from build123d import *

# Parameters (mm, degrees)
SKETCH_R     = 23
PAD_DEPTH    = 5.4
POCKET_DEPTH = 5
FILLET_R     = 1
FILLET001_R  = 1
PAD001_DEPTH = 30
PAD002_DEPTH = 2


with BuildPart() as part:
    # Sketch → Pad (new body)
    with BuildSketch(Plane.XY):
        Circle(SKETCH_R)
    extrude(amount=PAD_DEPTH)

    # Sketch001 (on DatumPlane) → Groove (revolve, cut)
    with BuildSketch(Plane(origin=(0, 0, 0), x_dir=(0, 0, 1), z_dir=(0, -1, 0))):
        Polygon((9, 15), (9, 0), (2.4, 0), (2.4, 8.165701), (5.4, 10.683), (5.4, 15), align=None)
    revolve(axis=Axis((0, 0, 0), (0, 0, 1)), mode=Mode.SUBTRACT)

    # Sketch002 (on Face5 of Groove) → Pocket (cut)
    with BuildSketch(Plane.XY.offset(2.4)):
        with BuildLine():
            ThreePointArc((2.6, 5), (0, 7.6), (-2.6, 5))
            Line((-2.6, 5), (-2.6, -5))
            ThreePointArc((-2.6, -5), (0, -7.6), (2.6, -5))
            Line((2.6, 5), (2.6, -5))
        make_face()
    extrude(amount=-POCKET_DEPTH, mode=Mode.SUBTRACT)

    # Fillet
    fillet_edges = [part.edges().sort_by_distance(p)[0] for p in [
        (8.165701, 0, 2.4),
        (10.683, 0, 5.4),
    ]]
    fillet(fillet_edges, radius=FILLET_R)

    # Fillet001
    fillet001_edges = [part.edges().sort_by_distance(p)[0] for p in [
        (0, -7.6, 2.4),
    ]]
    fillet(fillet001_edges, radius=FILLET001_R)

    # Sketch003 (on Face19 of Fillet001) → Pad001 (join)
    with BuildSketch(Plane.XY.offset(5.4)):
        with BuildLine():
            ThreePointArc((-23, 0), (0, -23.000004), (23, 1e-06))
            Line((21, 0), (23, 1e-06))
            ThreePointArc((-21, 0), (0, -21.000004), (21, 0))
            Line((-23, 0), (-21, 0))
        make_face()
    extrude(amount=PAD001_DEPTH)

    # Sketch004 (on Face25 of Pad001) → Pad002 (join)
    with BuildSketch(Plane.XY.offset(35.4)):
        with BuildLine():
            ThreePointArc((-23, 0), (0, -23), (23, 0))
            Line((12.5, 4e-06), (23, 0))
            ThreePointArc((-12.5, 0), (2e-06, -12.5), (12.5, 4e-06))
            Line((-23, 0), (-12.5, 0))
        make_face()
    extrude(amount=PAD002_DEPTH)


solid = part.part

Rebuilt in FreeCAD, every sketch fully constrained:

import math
import FreeCAD as App
import Part
import Sketcher

V = App.Vector
Q = App.Units.Quantity


def edges_at(feature, points):
    """Names of the edges that pass closest to the given points."""
    edges = feature.Shape.Edges
    near = lambda p: min(range(len(edges)), key=lambda i: edges[i].distToShape(Part.Vertex(*p))[0])
    return sorted({f"Edge{near(p) + 1}" for p in points})

doc = App.newDocument("Part")
params = doc.addObject("Spreadsheet::Sheet", "Params")
for row, (alias, value) in enumerate([
    ("sketch1_diameter", "46 mm"),
    ("pad1_length", "5.4 mm"),
    ("sketch2_width", "15 mm"),
    ("sketch2_height", "3.6 mm"),
    ("sketch2_height2", "6.6 mm"),
    ("groove_angle", "360 deg"),
    ("sketch3_radius", "2.6 mm"),
    ("sketch3_height", "10 mm"),
    ("pocket1_length", "5 mm"),
    ("fillet_radius", "1 mm"),
    ("fillet2_radius", "1 mm"),
    ("sketch4_radius", "23 mm"),
    ("sketch4_radius2", "21 mm"),
    ("pad2_length", "30 mm"),
    ("sketch5_radius", "23 mm"),
    ("sketch5_radius2", "12.5 mm"),
    ("pad3_length", "2 mm"),
], start=1):
    params.set(f"A{row}", alias)
    params.set(f"B{row}", "=" + value)
    params.setAlias(f"B{row}", alias)

body = doc.addObject("PartDesign::Body", "Body")

# Sketch on XY plane
sketch1 = body.newObject("Sketcher::SketchObject", "Sketch")
sketch1.AttachmentSupport = (doc.getObject("XY_Plane"), [""])
sketch1.MapMode = "FlatFace"
sketch1.addGeometry(Part.Circle(V(0, 0, 0), V(0, 0, 1), 23), False)
sketch1.addConstraint([
    Sketcher.Constraint("Coincident", 0, 3, -1, 1),
    Sketcher.Constraint("Diameter", 0, 46.0),
])
sketch1.setExpression("Constraints[1]", "Params.sketch1_diameter")
pad1 = body.newObject("PartDesign::Pad", "Pad")
pad1.Profile = sketch1
pad1.setExpression("Length", "Params.pad1_length")

# Sketch on XZ plane
sketch2 = body.newObject("Sketcher::SketchObject", "Sketch001")
sketch2.AttachmentSupport = (doc.getObject("XZ_Plane"), [""])
sketch2.MapMode = "FlatFace"
sketch2.addGeometry([
    Part.LineSegment(V(0, 9, 0), V(-15, 9, 0)),  # 0
    Part.LineSegment(V(-15, 9, 0), V(-15, 5.4, 0)),  # 1
    Part.LineSegment(V(-15, 5.4, 0), V(-10.683, 5.4, 0)),  # 2
    Part.LineSegment(V(-10.683, 5.4, 0), V(-8.165701, 2.4, 0)),  # 3
    Part.LineSegment(V(-8.165701, 2.4, 0), V(0, 2.4, 0)),  # 4
    Part.LineSegment(V(0, 2.4, 0), V(0, 9, 0)),  # 5
], False)
sketch2.addConstraint([
    Sketcher.Constraint("Coincident", 0, 2, 1, 1),
    Sketcher.Constraint("Coincident", 1, 2, 2, 1),
    Sketcher.Constraint("Coincident", 2, 2, 3, 1),
    Sketcher.Constraint("Coincident", 3, 2, 4, 1),
    Sketcher.Constraint("Coincident", 4, 2, 5, 1),
    Sketcher.Constraint("Coincident", 5, 2, 0, 1),
    Sketcher.Constraint("Horizontal", 0),
    Sketcher.Constraint("Vertical", 1),
    Sketcher.Constraint("Horizontal", 2),
    Sketcher.Constraint("Horizontal", 4),
    Sketcher.Constraint("Vertical", 5),
    Sketcher.Constraint("PointOnObject", 4, 2, -2),
    Sketcher.Constraint("DistanceX", 0, 2, 0, 1, 15.0),
    Sketcher.Constraint("Angle", 3, Q("-49.999999 deg")),
    Sketcher.Constraint("DistanceY", 1, 2, 1, 1, 3.6),
    Sketcher.Constraint("DistanceY", 5, 1, 5, 2, 6.6),
    Sketcher.Constraint("DistanceY", -1, 1, 0, 2, 9.0),
    Sketcher.Constraint("DistanceX", 2, 1, 2, 2, 4.317),
])
sketch2.setExpression("Constraints[12]", "Params.sketch2_width")
sketch2.setExpression("Constraints[14]", "Params.sketch2_height")
sketch2.setExpression("Constraints[15]", "Params.sketch2_height2")
groove = body.newObject("PartDesign::Groove", "Groove")
groove.Profile = sketch2
groove.ReferenceAxis = (sketch2, ["V_Axis"])
groove.setExpression("Angle", "Params.groove_angle")

# Sketch on XY plane
sketch3 = body.newObject("Sketcher::SketchObject", "Sketch002")
sketch3.AttachmentSupport = (doc.getObject("XY_Plane"), [""])
sketch3.MapMode = "FlatFace"
sketch3.AttachmentOffset = App.Placement(V(0, 0, 2.4), App.Rotation())
sketch3.addGeometry([
    Part.ArcOfCircle(Part.Circle(V(0, 5, 0), V(0, 0, 1), 2.6), math.radians(0), math.radians(180)),
    Part.LineSegment(V(-2.6, 5, 0), V(-2.6, -5, 0)),
    Part.ArcOfCircle(Part.Circle(V(0, -5, 0), V(0, 0, 1), 2.6), math.radians(180), math.radians(360)),
    Part.LineSegment(V(2.6, -5, 0), V(2.6, 5, 0)),
], False)
sketch3.addConstraint([
    Sketcher.Constraint("Tangent", 0, 2, 1, 1),
    Sketcher.Constraint("Tangent", 1, 2, 2, 1),
    Sketcher.Constraint("Tangent", 2, 2, 3, 1),
    Sketcher.Constraint("Tangent", 3, 2, 0, 1),
    Sketcher.Constraint("Vertical", 1),
    Sketcher.Constraint("Vertical", 3),
    Sketcher.Constraint("Symmetric", 0, 3, 2, 3, -1, 1),
    Sketcher.Constraint("Radius", 0, 2.6),
    Sketcher.Constraint("DistanceY", 1, 2, 1, 1, 10.0),
])
sketch3.setExpression("Constraints[7]", "Params.sketch3_radius")
sketch3.setExpression("Constraints[8]", "Params.sketch3_height")
pocket1 = body.newObject("PartDesign::Pocket", "Pocket")
pocket1.Profile = sketch3
pocket1.setExpression("Length", "Params.pocket1_length")
doc.recompute()

fillet = body.newObject("PartDesign::Fillet", "Fillet")
fillet.Base = (pocket1, edges_at(pocket1, [(8.166, 0, 2.4), (10.683, 0, 5.4)]))
fillet.setExpression("Radius", "Params.fillet_radius")
doc.recompute()

fillet2 = body.newObject("PartDesign::Fillet", "Fillet001")
fillet2.Base = (fillet, edges_at(fillet, [(0, -7.6, 2.4)]))
fillet2.setExpression("Radius", "Params.fillet2_radius")

# Sketch on XY plane
sketch4 = body.newObject("Sketcher::SketchObject", "Sketch003")
sketch4.AttachmentSupport = (doc.getObject("XY_Plane"), [""])
sketch4.MapMode = "FlatFace"
sketch4.AttachmentOffset = App.Placement(V(0, 0, 5.4), App.Rotation())
sketch4.addGeometry([
    Part.ArcOfCircle(Part.Circle(V(0, -0.000004, 0), V(0, 0, 1), 23), math.radians(179.99999), math.radians(360.000012)),
    Part.LineSegment(V(23, 0.000001, 0), V(21, 0, 0)),
    Part.ArcOfCircle(Part.Circle(V(0, -0.000004, 0), V(0, 0, 1), 21), math.radians(179.999989), math.radians(360.000011)),
    Part.LineSegment(V(-21, 0, 0), V(-23, 0, 0)),
], False)
sketch4.addConstraint([
    Sketcher.Constraint("Coincident", 0, 2, 1, 1),
    Sketcher.Constraint("Coincident", 1, 2, 2, 2),
    Sketcher.Constraint("Coincident", 2, 1, 3, 1),
    Sketcher.Constraint("Coincident", 3, 2, 0, 1),
    Sketcher.Constraint("Horizontal", 1),
    Sketcher.Constraint("Horizontal", 3),
    Sketcher.Constraint("Coincident", 0, 3, -1, 1),
    Sketcher.Constraint("Coincident", 2, 3, -1, 1),
    Sketcher.Constraint("PointOnObject", 0, 2, -1),
    Sketcher.Constraint("PointOnObject", 2, 1, -1),
    Sketcher.Constraint("Radius", 0, 23.0),
    Sketcher.Constraint("Radius", 2, 21.0),
])
sketch4.setExpression("Constraints[10]", "Params.sketch4_radius")
sketch4.setExpression("Constraints[11]", "Params.sketch4_radius2")
pad2 = body.newObject("PartDesign::Pad", "Pad001")
pad2.Profile = sketch4
pad2.setExpression("Length", "Params.pad2_length")

# Sketch on XY plane
sketch5 = body.newObject("Sketcher::SketchObject", "Sketch004")
sketch5.AttachmentSupport = (doc.getObject("XY_Plane"), [""])
sketch5.MapMode = "FlatFace"
sketch5.AttachmentOffset = App.Placement(V(0, 0, 35.4), App.Rotation())
sketch5.addGeometry([
    Part.ArcOfCircle(Part.Circle(V(0, 0, 0), V(0, 0, 1), 23), math.radians(180), math.radians(360)),
    Part.LineSegment(V(23, 0, 0), V(12.5, 0.000004, 0)),
    Part.ArcOfCircle(Part.Circle(V(0, 0, 0), V(0, 0, 1), 12.5), math.radians(180), math.radians(360.000018)),
    Part.LineSegment(V(-12.5, 0, 0), V(-23, 0, 0)),
], False)
sketch5.addConstraint([
    Sketcher.Constraint("Coincident", 0, 2, 1, 1),
    Sketcher.Constraint("Coincident", 1, 2, 2, 2),
    Sketcher.Constraint("Coincident", 2, 1, 3, 1),
    Sketcher.Constraint("Coincident", 3, 2, 0, 1),
    Sketcher.Constraint("Horizontal", 3),
    Sketcher.Constraint("Coincident", 0, 3, -1, 1),
    Sketcher.Constraint("Coincident", 2, 3, -1, 1),
    Sketcher.Constraint("PointOnObject", 0, 2, -1),
    Sketcher.Constraint("PointOnObject", 2, 1, -1),
    Sketcher.Constraint("Radius", 0, 23.0),
    Sketcher.Constraint("Radius", 2, 12.5),
    Sketcher.Constraint("Angle", 1, Q("179.999978 deg")),
])
sketch5.setExpression("Constraints[9]", "Params.sketch5_radius")
sketch5.setExpression("Constraints[10]", "Params.sketch5_radius2")
pad3 = body.newObject("PartDesign::Pad", "Pad002")
pad3.Profile = sketch5
pad3.setExpression("Length", "Params.pad3_length")

doc.recompute()
